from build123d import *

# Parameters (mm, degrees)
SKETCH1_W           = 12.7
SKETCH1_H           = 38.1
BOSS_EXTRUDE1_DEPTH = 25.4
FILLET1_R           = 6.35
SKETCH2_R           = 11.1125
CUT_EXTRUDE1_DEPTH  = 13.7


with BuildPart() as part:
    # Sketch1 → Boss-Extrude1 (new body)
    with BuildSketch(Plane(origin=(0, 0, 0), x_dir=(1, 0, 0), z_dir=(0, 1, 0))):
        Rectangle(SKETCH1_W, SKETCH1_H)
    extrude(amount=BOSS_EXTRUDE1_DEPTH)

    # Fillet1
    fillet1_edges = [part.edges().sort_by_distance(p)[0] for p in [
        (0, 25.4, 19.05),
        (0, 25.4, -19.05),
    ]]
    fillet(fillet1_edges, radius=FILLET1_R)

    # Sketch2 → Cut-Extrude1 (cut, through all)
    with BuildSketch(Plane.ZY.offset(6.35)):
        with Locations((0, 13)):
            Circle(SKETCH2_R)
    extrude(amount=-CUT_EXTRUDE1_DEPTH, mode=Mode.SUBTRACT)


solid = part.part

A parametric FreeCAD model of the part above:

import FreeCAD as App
import Part
import Sketcher

V = App.Vector
Q = App.Units.Quantity


def edges_at(feature, points):
    """Names of the edges that pass closest to the given points."""
    edges = feature.Shape.Edges
    near = lambda p: min(range(len(edges)), key=lambda i: edges[i].distToShape(Part.Vertex(*p))[0])
    return sorted({f"Edge{near(p) + 1}" for p in points})

doc = App.newDocument("Part")
params = doc.addObject("Spreadsheet::Sheet", "Params")
for row, (alias, value) in enumerate([
    ("sketch1_width", "0.5 in"),
    ("sketch1_height", "1.5 in"),
    ("pad1_length", "1 in"),
    ("fillet_radius", "0.25 in"),
    ("sketch2_diameter", "0.875 in"),
], start=1):
    params.set(f"A{row}", alias)
    params.set(f"B{row}", "=" + value)
    params.setAlias(f"B{row}", alias)

body = doc.addObject("PartDesign::Body", "Body")

# Sketch on XZ plane
sketch1 = body.newObject("Sketcher::SketchObject", "Sketch")
sketch1.AttachmentSupport = (doc.getObject("XZ_Plane"), [""])
sketch1.MapMode = "FlatFace"
sketch1.addGeometry(Part.LineSegment(V(-6, -19, 0), V(-6, 19, 0)), False)
sketch1.addGeometry(Part.LineSegment(V(-6, 19, 0), V(6, 19, 0)), False)
sketch1.addGeometry(Part.LineSegment(V(6, 19, 0), V(6, -19, 0)), False)
sketch1.addGeometry(Part.LineSegment(V(6, -19, 0), V(-6, -19, 0)), False)
sketch1.addConstraint(Sketcher.Constraint("Coincident", 0, 2, 1, 1))
sketch1.addConstraint(Sketcher.Constraint("Coincident", 1, 2, 2, 1))
sketch1.addConstraint(Sketcher.Constraint("Coincident", 2, 2, 3, 1))
sketch1.addConstraint(Sketcher.Constraint("Coincident", 3, 2, 0, 1))
sketch1.addConstraint(Sketcher.Constraint("Vertical", 0))
sketch1.addConstraint(Sketcher.Constraint("Horizontal", 1))
sketch1.addConstraint(Sketcher.Constraint("Vertical", 2))
sketch1.addConstraint(Sketcher.Constraint("Horizontal", 3))
sketch1.addConstraint(Sketcher.Constraint("Symmetric", 0, 2, 2, 2, -1, 1))
sketch1.addConstraint(Sketcher.Constraint("DistanceX", 1, 1, 1, 2, Q("0.5 in")))
sketch1.addConstraint(Sketcher.Constraint("DistanceY", 0, 1, 0, 2, Q("1.5 in")))
sketch1.setExpression("Constraints[9]", "Params.sketch1_width")
sketch1.setExpression("Constraints[10]", "Params.sketch1_height")
pad1 = body.newObject("PartDesign::Pad", "Pad")
pad1.Profile = sketch1
pad1.setExpression("Length", "Params.pad1_length")
pad1.Reversed = True
doc.recompute()

fillet = body.newObject("PartDesign::Fillet", "Fillet")
fillet.Base = (pad1, edges_at(pad1, [(0, 25.4, 19.05), (0, 25.4, -19.05)]))
fillet.setExpression("Radius", "Params.fillet_radius")

# Sketch on YZ plane
sketch2 = body.newObject("Sketcher::SketchObject", "Sketch001")
sketch2.AttachmentSupport = (doc.getObject("YZ_Plane"), [""])
sketch2.MapMode = "FlatFace"
sketch2.AttachmentOffset = App.Placement(V(0, 0, -0.25 * 25.4), App.Rotation())
sketch2.addGeometry(Part.Circle(V(13, 0, 0), V(0, 0, 1), 11), False)
sketch2.addConstraint(Sketcher.Constraint("PointOnObject", 0, 3, -1))
sketch2.addConstraint(Sketcher.Constraint("Diameter", 0, Q("0.875 in")))
sketch2.addConstraint(Sketcher.Constraint("DistanceX", -1, 1, 0, 3, Q("13 mm")))
sketch2.setExpression("Constraints[1]", "Params.sketch2_diameter")
pocket1 = body.newObject("PartDesign::Pocket", "Pocket")
pocket1.Profile = sketch2
pocket1.Type = "ThroughAll"
pocket1.Reversed = True

doc.recompute()
